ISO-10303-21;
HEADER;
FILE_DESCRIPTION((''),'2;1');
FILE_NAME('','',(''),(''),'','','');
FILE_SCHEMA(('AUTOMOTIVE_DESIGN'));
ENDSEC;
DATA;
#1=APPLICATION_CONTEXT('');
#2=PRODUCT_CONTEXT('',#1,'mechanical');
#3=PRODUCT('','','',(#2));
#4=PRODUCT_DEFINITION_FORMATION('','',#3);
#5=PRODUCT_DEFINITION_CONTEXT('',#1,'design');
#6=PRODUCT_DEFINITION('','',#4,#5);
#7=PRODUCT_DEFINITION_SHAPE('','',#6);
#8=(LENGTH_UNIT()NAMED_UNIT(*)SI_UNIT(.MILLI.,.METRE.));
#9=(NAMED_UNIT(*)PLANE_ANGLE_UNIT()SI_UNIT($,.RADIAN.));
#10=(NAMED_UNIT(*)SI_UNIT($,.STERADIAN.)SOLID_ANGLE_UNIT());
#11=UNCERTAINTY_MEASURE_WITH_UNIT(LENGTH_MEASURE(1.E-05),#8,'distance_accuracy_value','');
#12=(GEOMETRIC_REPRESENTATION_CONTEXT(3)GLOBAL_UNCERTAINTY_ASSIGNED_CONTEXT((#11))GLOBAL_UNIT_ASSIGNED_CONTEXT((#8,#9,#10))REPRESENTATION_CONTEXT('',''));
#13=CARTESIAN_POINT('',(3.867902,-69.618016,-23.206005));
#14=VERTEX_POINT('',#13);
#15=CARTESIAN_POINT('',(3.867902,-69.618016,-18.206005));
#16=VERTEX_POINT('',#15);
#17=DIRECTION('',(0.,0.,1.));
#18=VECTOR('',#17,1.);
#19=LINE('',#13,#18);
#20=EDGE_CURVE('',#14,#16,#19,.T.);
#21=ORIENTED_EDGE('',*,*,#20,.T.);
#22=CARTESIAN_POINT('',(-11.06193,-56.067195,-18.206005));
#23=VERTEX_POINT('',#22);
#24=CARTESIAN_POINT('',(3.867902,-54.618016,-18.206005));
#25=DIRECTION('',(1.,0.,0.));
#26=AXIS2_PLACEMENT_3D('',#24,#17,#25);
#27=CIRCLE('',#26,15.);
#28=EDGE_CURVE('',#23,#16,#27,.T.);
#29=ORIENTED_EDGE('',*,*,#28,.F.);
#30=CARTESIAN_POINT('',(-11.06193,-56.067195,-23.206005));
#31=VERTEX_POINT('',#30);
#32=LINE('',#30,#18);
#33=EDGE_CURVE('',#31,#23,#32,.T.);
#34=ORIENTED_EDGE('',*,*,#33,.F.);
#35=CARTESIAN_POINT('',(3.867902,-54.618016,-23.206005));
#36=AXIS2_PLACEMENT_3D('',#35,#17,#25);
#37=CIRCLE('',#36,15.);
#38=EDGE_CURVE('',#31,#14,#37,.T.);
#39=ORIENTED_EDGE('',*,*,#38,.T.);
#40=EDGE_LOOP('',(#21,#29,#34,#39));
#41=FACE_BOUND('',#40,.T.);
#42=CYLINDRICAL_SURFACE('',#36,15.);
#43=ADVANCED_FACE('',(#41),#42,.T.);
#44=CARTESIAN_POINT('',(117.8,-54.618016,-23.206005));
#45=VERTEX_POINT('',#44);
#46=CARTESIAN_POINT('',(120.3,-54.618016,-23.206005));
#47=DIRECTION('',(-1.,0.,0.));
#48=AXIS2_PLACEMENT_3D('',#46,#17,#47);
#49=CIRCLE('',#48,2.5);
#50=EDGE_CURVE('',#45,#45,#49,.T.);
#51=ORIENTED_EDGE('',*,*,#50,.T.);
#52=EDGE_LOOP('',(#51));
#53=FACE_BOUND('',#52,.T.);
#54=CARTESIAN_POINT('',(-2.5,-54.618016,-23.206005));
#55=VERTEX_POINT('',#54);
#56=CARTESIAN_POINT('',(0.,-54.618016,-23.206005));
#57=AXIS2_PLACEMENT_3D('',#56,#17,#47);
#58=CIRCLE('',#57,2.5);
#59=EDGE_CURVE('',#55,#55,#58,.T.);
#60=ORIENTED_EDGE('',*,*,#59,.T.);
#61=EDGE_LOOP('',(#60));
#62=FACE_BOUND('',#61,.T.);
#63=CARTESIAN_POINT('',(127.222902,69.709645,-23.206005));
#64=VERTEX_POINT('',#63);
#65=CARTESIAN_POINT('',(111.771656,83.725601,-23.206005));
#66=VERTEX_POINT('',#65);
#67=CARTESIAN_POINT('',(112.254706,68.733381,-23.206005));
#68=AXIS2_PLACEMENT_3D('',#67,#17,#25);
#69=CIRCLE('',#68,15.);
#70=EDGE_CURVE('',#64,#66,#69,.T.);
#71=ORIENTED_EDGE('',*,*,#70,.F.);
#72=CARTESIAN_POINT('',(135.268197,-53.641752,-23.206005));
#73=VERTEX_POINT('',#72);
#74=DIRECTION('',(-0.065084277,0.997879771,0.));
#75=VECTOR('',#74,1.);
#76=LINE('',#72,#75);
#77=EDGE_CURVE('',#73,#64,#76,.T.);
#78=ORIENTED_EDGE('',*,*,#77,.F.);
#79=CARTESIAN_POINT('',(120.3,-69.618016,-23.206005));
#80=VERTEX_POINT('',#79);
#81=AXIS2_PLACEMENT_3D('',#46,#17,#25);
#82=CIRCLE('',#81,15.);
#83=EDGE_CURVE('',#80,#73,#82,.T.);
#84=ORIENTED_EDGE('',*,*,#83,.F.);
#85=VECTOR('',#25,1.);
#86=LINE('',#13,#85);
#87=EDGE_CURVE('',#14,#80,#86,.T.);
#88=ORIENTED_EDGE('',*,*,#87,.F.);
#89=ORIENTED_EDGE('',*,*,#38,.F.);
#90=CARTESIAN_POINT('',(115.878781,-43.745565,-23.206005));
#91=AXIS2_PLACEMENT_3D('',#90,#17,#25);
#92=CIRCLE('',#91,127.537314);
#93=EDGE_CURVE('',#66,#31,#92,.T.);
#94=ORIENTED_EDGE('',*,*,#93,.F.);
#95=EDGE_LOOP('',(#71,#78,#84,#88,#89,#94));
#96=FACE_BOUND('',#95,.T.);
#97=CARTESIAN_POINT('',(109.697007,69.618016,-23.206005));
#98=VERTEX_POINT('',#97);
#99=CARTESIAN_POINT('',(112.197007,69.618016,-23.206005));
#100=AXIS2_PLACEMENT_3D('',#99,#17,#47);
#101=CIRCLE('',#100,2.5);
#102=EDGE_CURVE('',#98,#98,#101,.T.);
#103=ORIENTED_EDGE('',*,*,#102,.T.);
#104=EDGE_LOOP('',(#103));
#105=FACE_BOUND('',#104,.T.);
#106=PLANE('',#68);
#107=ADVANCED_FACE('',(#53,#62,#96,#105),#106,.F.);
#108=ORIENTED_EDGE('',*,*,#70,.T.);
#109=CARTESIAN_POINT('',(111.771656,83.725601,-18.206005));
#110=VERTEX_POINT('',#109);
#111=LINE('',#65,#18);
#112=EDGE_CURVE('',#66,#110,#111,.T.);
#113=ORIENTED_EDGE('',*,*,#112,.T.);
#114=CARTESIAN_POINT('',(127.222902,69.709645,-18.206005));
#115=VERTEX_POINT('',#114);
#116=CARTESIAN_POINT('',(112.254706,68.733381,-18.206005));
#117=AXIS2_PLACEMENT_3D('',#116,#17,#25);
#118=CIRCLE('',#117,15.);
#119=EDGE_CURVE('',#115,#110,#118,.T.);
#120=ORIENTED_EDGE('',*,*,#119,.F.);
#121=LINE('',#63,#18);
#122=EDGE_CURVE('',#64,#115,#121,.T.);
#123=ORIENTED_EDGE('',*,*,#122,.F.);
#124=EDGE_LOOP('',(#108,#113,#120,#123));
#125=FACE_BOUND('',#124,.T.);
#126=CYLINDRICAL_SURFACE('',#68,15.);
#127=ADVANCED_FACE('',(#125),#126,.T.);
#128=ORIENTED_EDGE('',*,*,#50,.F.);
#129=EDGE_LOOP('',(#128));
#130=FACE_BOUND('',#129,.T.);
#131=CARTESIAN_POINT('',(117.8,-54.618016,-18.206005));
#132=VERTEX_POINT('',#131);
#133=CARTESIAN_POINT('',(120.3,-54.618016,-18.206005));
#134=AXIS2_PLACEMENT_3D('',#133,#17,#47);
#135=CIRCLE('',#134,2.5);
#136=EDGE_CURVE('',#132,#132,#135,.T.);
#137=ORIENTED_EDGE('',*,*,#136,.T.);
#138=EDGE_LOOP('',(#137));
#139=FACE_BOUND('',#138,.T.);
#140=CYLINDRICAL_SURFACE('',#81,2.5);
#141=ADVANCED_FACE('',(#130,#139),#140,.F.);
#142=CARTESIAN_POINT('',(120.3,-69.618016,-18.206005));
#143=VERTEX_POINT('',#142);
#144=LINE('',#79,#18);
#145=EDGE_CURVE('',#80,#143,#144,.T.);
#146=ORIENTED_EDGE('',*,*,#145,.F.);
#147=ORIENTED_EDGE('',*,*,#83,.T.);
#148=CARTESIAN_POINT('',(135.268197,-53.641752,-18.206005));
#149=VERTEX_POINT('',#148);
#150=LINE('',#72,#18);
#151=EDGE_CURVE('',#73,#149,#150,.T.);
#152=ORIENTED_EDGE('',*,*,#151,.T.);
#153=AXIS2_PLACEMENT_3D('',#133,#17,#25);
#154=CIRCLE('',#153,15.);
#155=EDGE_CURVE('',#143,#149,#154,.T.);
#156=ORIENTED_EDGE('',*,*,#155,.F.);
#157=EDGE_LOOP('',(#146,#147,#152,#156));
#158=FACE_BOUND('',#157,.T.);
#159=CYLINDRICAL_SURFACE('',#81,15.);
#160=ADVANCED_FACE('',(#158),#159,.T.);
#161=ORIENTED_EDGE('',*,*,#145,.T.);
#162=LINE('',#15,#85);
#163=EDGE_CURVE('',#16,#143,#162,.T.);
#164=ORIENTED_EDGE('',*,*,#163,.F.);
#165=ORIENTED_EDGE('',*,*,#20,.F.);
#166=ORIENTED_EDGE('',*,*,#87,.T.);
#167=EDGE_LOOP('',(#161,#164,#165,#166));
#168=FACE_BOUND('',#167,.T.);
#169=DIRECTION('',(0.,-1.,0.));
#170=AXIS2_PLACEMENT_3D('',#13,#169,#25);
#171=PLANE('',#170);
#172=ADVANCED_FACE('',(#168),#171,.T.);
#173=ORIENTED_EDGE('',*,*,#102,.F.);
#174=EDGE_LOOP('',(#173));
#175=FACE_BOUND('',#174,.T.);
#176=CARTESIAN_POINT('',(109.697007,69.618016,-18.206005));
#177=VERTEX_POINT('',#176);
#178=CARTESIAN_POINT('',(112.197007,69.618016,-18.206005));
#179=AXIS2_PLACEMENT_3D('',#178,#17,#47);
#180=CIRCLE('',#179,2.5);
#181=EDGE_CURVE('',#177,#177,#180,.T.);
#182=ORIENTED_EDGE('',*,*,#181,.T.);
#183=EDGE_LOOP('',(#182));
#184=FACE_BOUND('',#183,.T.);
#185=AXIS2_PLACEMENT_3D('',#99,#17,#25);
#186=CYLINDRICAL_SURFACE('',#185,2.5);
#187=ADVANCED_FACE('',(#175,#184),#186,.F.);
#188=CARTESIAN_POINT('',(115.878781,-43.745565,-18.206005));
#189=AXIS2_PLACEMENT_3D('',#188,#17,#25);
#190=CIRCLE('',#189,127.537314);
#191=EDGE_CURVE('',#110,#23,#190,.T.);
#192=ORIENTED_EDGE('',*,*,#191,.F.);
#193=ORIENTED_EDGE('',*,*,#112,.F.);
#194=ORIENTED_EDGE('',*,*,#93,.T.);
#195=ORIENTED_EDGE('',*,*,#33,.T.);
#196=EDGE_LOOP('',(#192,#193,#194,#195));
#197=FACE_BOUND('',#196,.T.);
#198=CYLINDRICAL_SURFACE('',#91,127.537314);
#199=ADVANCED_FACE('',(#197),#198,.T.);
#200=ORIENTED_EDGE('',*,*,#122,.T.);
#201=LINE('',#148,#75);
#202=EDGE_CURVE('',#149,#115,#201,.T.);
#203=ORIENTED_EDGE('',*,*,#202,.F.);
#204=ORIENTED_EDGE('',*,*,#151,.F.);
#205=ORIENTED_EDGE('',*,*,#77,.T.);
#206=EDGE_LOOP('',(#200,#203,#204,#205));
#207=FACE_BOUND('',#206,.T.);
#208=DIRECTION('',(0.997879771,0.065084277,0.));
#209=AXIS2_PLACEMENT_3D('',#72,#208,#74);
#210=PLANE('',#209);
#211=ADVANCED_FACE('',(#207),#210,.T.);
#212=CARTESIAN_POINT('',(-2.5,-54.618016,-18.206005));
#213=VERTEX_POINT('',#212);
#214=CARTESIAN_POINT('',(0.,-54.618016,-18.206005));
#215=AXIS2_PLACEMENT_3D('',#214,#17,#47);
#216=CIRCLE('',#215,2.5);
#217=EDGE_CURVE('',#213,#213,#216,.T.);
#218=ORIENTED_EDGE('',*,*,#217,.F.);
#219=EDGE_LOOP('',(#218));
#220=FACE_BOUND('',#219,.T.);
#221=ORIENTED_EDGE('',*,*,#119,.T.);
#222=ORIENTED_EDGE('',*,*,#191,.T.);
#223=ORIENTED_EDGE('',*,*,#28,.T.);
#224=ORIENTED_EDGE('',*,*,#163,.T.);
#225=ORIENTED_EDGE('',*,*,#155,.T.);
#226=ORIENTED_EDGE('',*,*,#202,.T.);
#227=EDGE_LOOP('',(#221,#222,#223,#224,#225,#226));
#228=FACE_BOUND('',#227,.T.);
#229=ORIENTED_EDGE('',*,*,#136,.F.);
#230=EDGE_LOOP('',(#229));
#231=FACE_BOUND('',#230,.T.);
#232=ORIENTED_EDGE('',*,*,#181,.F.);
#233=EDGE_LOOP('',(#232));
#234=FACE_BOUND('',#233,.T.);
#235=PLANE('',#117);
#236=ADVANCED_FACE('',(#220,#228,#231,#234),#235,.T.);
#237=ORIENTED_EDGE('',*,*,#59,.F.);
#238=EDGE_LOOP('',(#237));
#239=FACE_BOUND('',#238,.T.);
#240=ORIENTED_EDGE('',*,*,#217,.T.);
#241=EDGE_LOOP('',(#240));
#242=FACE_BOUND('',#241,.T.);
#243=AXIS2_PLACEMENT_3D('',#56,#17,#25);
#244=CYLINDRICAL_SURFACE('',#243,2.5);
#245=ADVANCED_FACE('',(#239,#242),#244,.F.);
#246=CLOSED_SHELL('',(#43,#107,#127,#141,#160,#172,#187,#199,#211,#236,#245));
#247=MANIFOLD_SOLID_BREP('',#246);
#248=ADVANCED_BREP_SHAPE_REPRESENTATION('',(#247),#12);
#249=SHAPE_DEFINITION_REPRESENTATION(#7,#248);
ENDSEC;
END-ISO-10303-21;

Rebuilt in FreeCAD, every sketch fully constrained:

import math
import FreeCAD as App
import Part
import Sketcher

doc = App.newDocument("Part")
params = doc.addObject("Spreadsheet::Sheet", "Params")
for row, (alias, value) in enumerate([
    ("sketch1_diameter", "5 mm"),
    ("sketch1_diameter2", "5 mm"),
    ("sketch1_diameter3", "5 mm"),
    ("sketch1_radius", "15 mm"),
    ("sketch1_radius2", "15 mm"),
    ("pad1_length", "5 mm"),
], start=1):
    params.set(f"A{row}", alias)
    params.set(f"B{row}", "=" + value)
    params.setAlias(f"B{row}", alias)

body = doc.addObject("PartDesign::Body", "Body")

sketch1 = body.newObject("Sketcher::SketchObject", "Sketch")
sketch1.AttachmentSupport = (doc.getObject("XY_Plane"), [""])
sketch1.MapMode = "FlatFace"
sketch1.AttachmentOffset = App.Placement(App.Vector(0, 0, -18.206005), App.Rotation())
sketch1.addGeometry(Part.LineSegment(App.Vector(3.867902, -69.618016, 0), App.Vector(120.3, -69.618016, 0)), False)
sketch1.addGeometry(Part.ArcOfCircle(Part.Circle(App.Vector(120.3, -54.618016, 0), App.Vector(0, 0, 1), 15), math.radians(-90), math.radians(3.731692)), False)
sketch1.addGeometry(Part.LineSegment(App.Vector(135.268197, -53.641752, 0), App.Vector(127.222902, 69.709645, 0)), False)
sketch1.addGeometry(Part.ArcOfCircle(Part.Circle(App.Vector(112.254706, 68.733381, 0), App.Vector(0, 0, 1), 15), math.radians(3.731692), math.radians(91.845433)), False)
sketch1.addGeometry(Part.ArcOfCircle(Part.Circle(App.Vector(115.878781, -43.745565, 0), App.Vector(0, 0, 1), 127.537314), math.radians(91.845433), math.radians(185.544105)), False)
sketch1.addGeometry(Part.ArcOfCircle(Part.Circle(App.Vector(3.867902, -54.618016, 0), App.Vector(0, 0, 1), 15), math.radians(-174.455895), math.radians(-90)), False)
sketch1.addGeometry(Part.Circle(App.Vector(0, -54.618016, 0), App.Vector(0, 0, 1), 2.5), False)
sketch1.addGeometry(Part.Circle(App.Vector(120.3, -54.618016, 0), App.Vector(0, 0, 1), 2.5), False)
sketch1.addGeometry(Part.Circle(App.Vector(112.197007, 69.618016, 0), App.Vector(0, 0, 1), 2.5), False)
sketch1.addConstraint(Sketcher.Constraint("Coincident", 0, 2, 1, 1))
sketch1.addConstraint(Sketcher.Constraint("Coincident", 1, 2, 2, 1))
sketch1.addConstraint(Sketcher.Constraint("Coincident", 2, 2, 3, 1))
sketch1.addConstraint(Sketcher.Constraint("Coincident", 3, 2, 4, 1))
sketch1.addConstraint(Sketcher.Constraint("Coincident", 4, 2, 5, 1))
sketch1.addConstraint(Sketcher.Constraint("Coincident", 5, 2, 0, 1))
sketch1.addConstraint(Sketcher.Constraint("Horizontal", 0))
sketch1.addConstraint(Sketcher.Constraint("Coincident", 7, 3, 1, 3))
sketch1.addConstraint(Sketcher.Constraint("PointOnObject", 6, 3, -2))
sketch1.addConstraint(Sketcher.Constraint("Diameter", 6, 5.0))
sketch1.addConstraint(Sketcher.Constraint("Diameter", 7, 5.0))
sketch1.addConstraint(Sketcher.Constraint("Diameter", 8, 5.0))
sketch1.addConstraint(Sketcher.Constraint("Radius", 1, 15.0))
sketch1.addConstraint(Sketcher.Constraint("Radius", 3, 15.0))
sketch1.addConstraint(Sketcher.Constraint("Radius", 5, 15.0))
sketch1.addConstraint(Sketcher.Constraint("DistanceY", 0, 2, 6, 3, 15.0))
sketch1.addConstraint(Sketcher.Constraint("DistanceX", -1, 1, 1, 3, 120.3))
sketch1.addConstraint(Sketcher.Constraint("DistanceX", -1, 1, 0, 2, 120.3))
sketch1.addConstraint(Sketcher.Constraint("Radius", 4, 127.537314))
sketch1.addConstraint(Sketcher.Constraint("DistanceY", -1, 1, 3, 2, 83.725601))
sketch1.addConstraint(Sketcher.Constraint("DistanceX", 8, 3, 3, 3, 0.057698))
sketch1.addConstraint(Sketcher.Constraint("DistanceX", 0, 1, 0, 2, 116.432098))
sketch1.addConstraint(Sketcher.Constraint("DistanceY", -1, 1, 3, 3, 68.733381))
sketch1.addConstraint(Sketcher.Constraint("DistanceX", -1, 1, 4, 3, 115.878781))
sketch1.addConstraint(Sketcher.Constraint("DistanceY", 1, 2, -1, 1, 53.641752))
sketch1.addConstraint(Sketcher.Constraint("DistanceX", 4, 2, -1, 1, 11.06193))
sketch1.addConstraint(Sketcher.Constraint("DistanceY", 1, 3, 4, 3, 10.872451))
sketch1.addConstraint(Sketcher.Constraint("DistanceY", 4, 3, 8, 3, 113.363581))
sketch1.addConstraint(Sketcher.Constraint("DistanceX", 3, 3, 1, 2, 23.013491))
sketch1.addConstraint(Sketcher.Constraint("DistanceY", 8, 3, 2, 2, 0.091629))
sketch1.setExpression("Constraints[9]", "Params.sketch1_diameter")
sketch1.setExpression("Constraints[10]", "Params.sketch1_diameter2")
sketch1.setExpression("Constraints[11]", "Params.sketch1_diameter3")
sketch1.setExpression("Constraints[12]", "Params.sketch1_radius")
sketch1.setExpression("Constraints[13]", "Params.sketch1_radius2")
pad1 = body.newObject("PartDesign::Pad", "Pad")
pad1.Profile = sketch1
pad1.setExpression("Length", "Params.pad1_length")
pad1.Reversed = True

doc.recompute()
